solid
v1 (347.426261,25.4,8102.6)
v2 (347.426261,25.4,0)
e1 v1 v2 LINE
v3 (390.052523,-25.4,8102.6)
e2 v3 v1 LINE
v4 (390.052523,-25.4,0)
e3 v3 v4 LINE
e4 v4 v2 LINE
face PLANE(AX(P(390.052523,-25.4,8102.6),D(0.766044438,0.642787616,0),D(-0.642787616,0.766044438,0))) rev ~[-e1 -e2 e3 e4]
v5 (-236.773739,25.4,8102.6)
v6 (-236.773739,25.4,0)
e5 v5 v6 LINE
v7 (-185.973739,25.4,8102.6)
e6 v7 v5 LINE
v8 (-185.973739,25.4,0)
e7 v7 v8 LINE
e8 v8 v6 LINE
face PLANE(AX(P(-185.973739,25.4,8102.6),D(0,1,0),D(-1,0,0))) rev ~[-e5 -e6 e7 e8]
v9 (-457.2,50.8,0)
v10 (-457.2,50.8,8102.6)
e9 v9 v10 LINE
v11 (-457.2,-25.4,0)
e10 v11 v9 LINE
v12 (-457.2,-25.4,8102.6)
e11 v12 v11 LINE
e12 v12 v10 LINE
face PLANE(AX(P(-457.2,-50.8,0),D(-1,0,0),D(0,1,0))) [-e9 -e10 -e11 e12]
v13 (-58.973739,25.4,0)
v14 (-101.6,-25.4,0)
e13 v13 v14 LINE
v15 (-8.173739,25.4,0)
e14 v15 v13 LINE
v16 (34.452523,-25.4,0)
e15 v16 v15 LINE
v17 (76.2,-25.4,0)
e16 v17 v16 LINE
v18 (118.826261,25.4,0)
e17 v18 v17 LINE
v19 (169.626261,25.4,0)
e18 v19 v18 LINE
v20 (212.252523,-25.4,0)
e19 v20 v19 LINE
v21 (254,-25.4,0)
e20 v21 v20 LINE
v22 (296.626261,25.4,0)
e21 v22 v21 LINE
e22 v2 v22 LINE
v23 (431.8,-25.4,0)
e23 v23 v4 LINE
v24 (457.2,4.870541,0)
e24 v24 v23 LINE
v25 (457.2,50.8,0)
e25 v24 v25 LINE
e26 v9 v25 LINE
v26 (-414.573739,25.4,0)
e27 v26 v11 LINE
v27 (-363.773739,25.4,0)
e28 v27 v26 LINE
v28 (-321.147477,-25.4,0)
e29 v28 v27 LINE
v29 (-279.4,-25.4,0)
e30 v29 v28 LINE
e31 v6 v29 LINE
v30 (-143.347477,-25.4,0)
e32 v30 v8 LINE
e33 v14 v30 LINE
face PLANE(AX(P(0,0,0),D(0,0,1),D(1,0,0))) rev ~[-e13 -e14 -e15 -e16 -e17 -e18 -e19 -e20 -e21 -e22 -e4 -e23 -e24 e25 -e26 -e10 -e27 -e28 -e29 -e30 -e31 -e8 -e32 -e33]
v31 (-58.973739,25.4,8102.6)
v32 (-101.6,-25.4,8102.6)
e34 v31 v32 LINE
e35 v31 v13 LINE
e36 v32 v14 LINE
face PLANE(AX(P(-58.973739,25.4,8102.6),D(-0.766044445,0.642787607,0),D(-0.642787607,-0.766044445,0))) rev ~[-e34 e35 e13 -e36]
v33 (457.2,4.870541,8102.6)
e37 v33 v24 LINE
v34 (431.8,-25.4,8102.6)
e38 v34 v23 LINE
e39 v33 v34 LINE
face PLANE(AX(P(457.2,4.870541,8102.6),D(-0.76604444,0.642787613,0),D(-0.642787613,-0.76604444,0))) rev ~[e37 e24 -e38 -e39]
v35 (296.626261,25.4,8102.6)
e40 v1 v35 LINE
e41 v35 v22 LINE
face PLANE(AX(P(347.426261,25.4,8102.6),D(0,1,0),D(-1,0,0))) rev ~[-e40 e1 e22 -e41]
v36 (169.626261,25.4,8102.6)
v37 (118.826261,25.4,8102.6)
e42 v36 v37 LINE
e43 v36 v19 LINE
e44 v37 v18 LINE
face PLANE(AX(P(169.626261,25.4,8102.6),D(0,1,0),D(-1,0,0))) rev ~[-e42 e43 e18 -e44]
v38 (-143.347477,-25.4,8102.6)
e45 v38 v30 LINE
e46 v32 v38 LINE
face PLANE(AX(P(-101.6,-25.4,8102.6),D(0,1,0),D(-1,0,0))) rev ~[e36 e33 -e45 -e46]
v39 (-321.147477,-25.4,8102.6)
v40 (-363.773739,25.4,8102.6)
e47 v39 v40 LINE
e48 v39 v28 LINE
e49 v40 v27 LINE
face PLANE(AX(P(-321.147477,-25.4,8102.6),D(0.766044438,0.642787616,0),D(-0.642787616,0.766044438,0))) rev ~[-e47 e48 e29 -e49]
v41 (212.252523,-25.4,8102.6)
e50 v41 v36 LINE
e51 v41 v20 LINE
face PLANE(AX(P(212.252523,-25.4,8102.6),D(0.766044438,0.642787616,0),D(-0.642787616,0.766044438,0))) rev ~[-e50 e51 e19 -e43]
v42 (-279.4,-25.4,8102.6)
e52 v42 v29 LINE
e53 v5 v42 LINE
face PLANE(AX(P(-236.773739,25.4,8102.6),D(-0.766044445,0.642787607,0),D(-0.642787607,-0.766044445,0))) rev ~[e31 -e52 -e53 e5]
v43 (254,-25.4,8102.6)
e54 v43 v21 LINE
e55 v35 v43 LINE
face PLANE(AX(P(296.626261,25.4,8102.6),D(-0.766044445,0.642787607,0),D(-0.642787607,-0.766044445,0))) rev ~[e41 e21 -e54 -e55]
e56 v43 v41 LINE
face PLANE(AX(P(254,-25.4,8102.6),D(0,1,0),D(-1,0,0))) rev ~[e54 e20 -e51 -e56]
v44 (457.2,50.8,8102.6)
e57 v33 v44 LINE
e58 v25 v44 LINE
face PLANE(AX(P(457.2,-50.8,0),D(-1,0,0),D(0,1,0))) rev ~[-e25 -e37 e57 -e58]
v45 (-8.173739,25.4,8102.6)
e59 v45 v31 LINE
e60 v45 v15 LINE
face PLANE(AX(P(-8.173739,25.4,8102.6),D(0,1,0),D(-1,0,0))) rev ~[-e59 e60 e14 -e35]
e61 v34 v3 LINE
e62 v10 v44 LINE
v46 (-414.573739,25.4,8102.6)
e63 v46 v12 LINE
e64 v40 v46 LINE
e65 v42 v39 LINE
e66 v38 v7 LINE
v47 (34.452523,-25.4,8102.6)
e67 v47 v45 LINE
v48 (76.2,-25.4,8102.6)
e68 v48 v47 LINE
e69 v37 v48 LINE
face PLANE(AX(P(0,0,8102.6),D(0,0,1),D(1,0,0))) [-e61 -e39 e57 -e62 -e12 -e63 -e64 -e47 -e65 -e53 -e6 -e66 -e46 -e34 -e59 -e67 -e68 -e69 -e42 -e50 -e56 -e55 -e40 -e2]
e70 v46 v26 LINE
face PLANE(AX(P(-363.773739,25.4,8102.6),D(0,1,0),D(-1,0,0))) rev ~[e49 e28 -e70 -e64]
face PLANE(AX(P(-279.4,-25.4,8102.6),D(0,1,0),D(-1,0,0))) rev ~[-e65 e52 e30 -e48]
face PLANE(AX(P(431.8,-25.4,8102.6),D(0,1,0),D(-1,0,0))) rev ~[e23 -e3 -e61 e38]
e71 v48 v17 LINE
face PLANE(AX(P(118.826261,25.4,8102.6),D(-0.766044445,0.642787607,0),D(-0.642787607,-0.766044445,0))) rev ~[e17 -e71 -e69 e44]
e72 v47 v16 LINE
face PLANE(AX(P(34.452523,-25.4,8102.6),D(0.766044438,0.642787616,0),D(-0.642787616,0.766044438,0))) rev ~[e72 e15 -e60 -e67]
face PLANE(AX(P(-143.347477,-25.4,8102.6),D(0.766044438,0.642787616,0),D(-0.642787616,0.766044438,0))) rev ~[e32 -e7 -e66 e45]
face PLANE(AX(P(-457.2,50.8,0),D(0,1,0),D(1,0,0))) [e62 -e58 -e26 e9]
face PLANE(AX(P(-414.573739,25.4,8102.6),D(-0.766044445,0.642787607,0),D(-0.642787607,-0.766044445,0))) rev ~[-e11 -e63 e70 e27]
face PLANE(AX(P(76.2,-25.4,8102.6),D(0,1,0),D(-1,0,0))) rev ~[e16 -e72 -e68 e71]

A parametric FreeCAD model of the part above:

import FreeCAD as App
import Part
import Sketcher

V = App.Vector
Q = App.Units.Quantity

doc = App.newDocument("Part")
body = doc.addObject("PartDesign::Body", "Body")

sketch1 = doc.addObject("Sketcher::SketchObject", "Sketch")
body.addObject(sketch1)
sketch1.AttachmentSupport = (doc.XY_Plane, [""])
sketch1.MapMode = "FlatFace"
sketch1.addGeometry([
    Part.LineSegment(V(-457, 51, 0), V(-457, -51, 0)),
    Part.LineSegment(V(-457, -51, 0), V(457, -51, 0)),
    Part.LineSegment(V(457, -51, 0), V(457, 51, 0)),
    Part.LineSegment(V(457, 51, 0), V(-457, 51, 0)),
], False)
sketch1.addConstraint([
    Sketcher.Constraint("Coincident", 0, 2, 1, 1),
    Sketcher.Constraint("Coincident", 1, 2, 2, 1),
    Sketcher.Constraint("Coincident", 2, 2, 3, 1),
    Sketcher.Constraint("Coincident", 3, 2, 0, 1),
    Sketcher.Constraint("Vertical", 0),
    Sketcher.Constraint("Horizontal", 1),
    Sketcher.Constraint("Vertical", 2),
    Sketcher.Constraint("Horizontal", 3),
    Sketcher.Constraint("Symmetric", 0, 2, 2, 2, -1, 1),
    Sketcher.Constraint("DistanceX", 1, 1, 1, 2, Q("36 in")),
    Sketcher.Constraint("DistanceY", 0, 2, 0, 1, Q("4 in")),
])
pad1 = doc.addObject("PartDesign::Pad", "Pad")
body.addObject(pad1)
pad1.Profile = sketch1
pad1.Length = Q("319 in")

sketch2 = doc.addObject("Sketcher::SketchObject", "Sketch001")
body.addObject(sketch2)
sketch2.AttachmentSupport = (doc.XY_Plane, [""])
sketch2.MapMode = "FlatFace"
sketch2.AttachmentOffset = App.Placement(V(0, 0, 319 * 25.4), App.Rotation())
sketch2.addGeometry([
    Part.LineSegment(V(-415, 25, 0), V(-457, -25, 0)),
    Part.LineSegment(V(-457, -25, 0), V(-457, -51, 0)),
    Part.LineSegment(V(-457, -51, 0), V(457, -51, 0)),
    Part.LineSegment(V(457, -51, 0), V(457, 5, 0)),
    Part.LineSegment(V(457, 5, 0), V(432, -25, 0)),
    Part.LineSegment(V(432, -25, 0), V(390, -25, 0)),
    Part.LineSegment(V(390, -25, 0), V(347, 25, 0)),
    Part.LineSegment(V(347, 25, 0), V(297, 25, 0)),
    Part.LineSegment(V(297, 25, 0), V(254, -25, 0)),
    Part.LineSegment(V(254, -25, 0), V(212, -25, 0)),
    Part.LineSegment(V(212, -25, 0), V(170, 25, 0)),
    Part.LineSegment(V(170, 25, 0), V(119, 25, 0)),
    Part.LineSegment(V(119, 25, 0), V(76, -25, 0)),
    Part.LineSegment(V(76, -25, 0), V(34, -25, 0)),
    Part.LineSegment(V(34, -25, 0), V(-8, 25, 0)),
    Part.LineSegment(V(-8, 25, 0), V(-59, 25, 0)),
    Part.LineSegment(V(-59, 25, 0), V(-102, -25, 0)),
    Part.LineSegment(V(-102, -25, 0), V(-143, -25, 0)),
    Part.LineSegment(V(-143, -25, 0), V(-186, 25, 0)),
    Part.LineSegment(V(-186, 25, 0), V(-237, 25, 0)),
    Part.LineSegment(V(-237, 25, 0), V(-279, -25, 0)),
    Part.LineSegment(V(-279, -25, 0), V(-321, -25, 0)),
    Part.LineSegment(V(-321, -25, 0), V(-364, 25, 0)),
    Part.LineSegment(V(-364, 25, 0), V(-415, 25, 0)),
], False)
sketch2.addConstraint([
    Sketcher.Constraint("Coincident", 0, 2, 1, 1),
    Sketcher.Constraint("Coincident", 1, 2, 2, 1),
    Sketcher.Constraint("Coincident", 2, 2, 3, 1),
    Sketcher.Constraint("Coincident", 3, 2, 4, 1),
    Sketcher.Constraint("Coincident", 4, 2, 5, 1),
    Sketcher.Constraint("Coincident", 5, 2, 6, 1),
    Sketcher.Constraint("Coincident", 6, 2, 7, 1),
    Sketcher.Constraint("Coincident", 7, 2, 8, 1),
    Sketcher.Constraint("Coincident", 8, 2, 9, 1),
    Sketcher.Constraint("Coincident", 9, 2, 10, 1),
    Sketcher.Constraint("Coincident", 10, 2, 11, 1),
    Sketcher.Constraint("Coincident", 11, 2, 12, 1),
    Sketcher.Constraint("Coincident", 12, 2, 13, 1),
    Sketcher.Constraint("Coincident", 13, 2, 14, 1),
    Sketcher.Constraint("Coincident", 14, 2, 15, 1),
    Sketcher.Constraint("Coincident", 15, 2, 16, 1),
    Sketcher.Constraint("Coincident", 16, 2, 17, 1),
    Sketcher.Constraint("Coincident", 17, 2, 18, 1),
    Sketcher.Constraint("Coincident", 18, 2, 19, 1),
    Sketcher.Constraint("Coincident", 19, 2, 20, 1),
    Sketcher.Constraint("Coincident", 20, 2, 21, 1),
    Sketcher.Constraint("Coincident", 21, 2, 22, 1),
    Sketcher.Constraint("Coincident", 22, 2, 23, 1),
    Sketcher.Constraint("Coincident", 23, 2, 0, 1),
    Sketcher.Constraint("Vertical", 1),
    Sketcher.Constraint("Horizontal", 2),
    Sketcher.Constraint("Vertical", 3),
    Sketcher.Constraint("Horizontal", 5),
    Sketcher.Constraint("Horizontal", 7),
    Sketcher.Constraint("Horizontal", 9),
    Sketcher.Constraint("Horizontal", 11),
    Sketcher.Constraint("Horizontal", 13),
    Sketcher.Constraint("Horizontal", 15),
    Sketcher.Constraint("Horizontal", 17),
    Sketcher.Constraint("Horizontal", 19),
    Sketcher.Constraint("Horizontal", 21),
    Sketcher.Constraint("Horizontal", 23),
    Sketcher.Constraint("Parallel", 0, 4),
    Sketcher.Constraint("Parallel", 4, 8),
    Sketcher.Constraint("Parallel", 6, 10),
    Sketcher.Constraint("Parallel", 8, 12),
    Sketcher.Constraint("Parallel", 10, 14),
    Sketcher.Constraint("Parallel", 12, 16),
    Sketcher.Constraint("Parallel", 14, 18),
    Sketcher.Constraint("Parallel", 16, 20),
    Sketcher.Constraint("Parallel", 18, 22),
    Sketcher.Constraint("Horizontal", 0, 2, 4, 2),
    Sketcher.Constraint("Horizontal", 5, 2, 8, 2),
    Sketcher.Constraint("Horizontal", 7, 2, 10, 2),
    Sketcher.Constraint("Horizontal", 9, 2, 12, 2),
    Sketcher.Constraint("Horizontal", 11, 2, 14, 2),
    Sketcher.Constraint("Horizontal", 13, 2, 16, 2),
    Sketcher.Constraint("Horizontal", 15, 2, 18, 2),
    Sketcher.Constraint("Horizontal", 17, 2, 20, 2),
    Sketcher.Constraint("Horizontal", 19, 2, 22, 2),
    Sketcher.Constraint("Equal", 5, 9),
    Sketcher.Constraint("Equal", 7, 11),
    Sketcher.Constraint("Equal", 9, 13),
    Sketcher.Constraint("Equal", 11, 15),
    Sketcher.Constraint("Equal", 13, 17),
    Sketcher.Constraint("Equal", 15, 19),
    Sketcher.Constraint("Equal", 17, 21),
    Sketcher.Constraint("Equal", 19, 23),
    Sketcher.Constraint("Equal", 0, 6),
    Sketcher.Constraint("DistanceX", 2, 1, 2, 2, Q("36 in")),
    Sketcher.Constraint("DistanceX", 7, 2, 7, 1, Q("2 in")),
    Sketcher.Constraint("DistanceY", 1, 2, 1, 1, Q("1 in")),
    Sketcher.Constraint("DistanceX", 0, 2, -1, 1, Q("18 in")),
    Sketcher.Constraint("DistanceY", 0, 2, -1, 1, Q("1 in")),
    Sketcher.Constraint("DistanceX", -1, 1, 4, 2, Q("17 in")),
    Sketcher.Constraint("DistanceY", -1, 1, 6, 2, Q("1 in")),
    Sketcher.Constraint("Angle", 0, Q("-130 deg")),
])
pocket1 = doc.addObject("PartDesign::Pocket", "Pocket")
body.addObject(pocket1)
pocket1.Profile = sketch2
pocket1.Type = "ThroughAll"

doc.recompute()
